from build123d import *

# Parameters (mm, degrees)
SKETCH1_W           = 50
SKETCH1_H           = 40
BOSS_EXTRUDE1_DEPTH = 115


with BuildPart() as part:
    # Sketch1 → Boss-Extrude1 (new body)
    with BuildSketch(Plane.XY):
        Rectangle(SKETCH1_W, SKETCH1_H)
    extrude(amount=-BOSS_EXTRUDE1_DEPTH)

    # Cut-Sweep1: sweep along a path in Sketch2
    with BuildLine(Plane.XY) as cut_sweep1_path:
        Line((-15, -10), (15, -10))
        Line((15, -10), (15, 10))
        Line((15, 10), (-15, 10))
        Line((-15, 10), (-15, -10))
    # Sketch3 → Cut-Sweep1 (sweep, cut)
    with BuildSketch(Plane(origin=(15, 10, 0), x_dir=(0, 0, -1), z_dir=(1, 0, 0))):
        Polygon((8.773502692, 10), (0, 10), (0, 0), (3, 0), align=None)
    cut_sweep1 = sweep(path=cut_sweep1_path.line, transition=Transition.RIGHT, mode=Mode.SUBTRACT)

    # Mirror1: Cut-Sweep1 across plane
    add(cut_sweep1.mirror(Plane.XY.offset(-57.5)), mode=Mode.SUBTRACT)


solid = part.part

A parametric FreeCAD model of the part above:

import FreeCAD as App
import Part
import Sketcher
Q = App.Units.Quantity


def add_polygon(sketch, points):
    """Adds a closed chain of lines whose ends are joined by coincident constraints."""
    first, n = sketch.GeometryCount, len(points)
    for a, b in zip(points, points[1:] + points[:1]):
        sketch.addGeometry(Part.LineSegment(App.Vector(*a, 0), App.Vector(*b, 0)), False)
    for i in range(n):
        sketch.addConstraint(Sketcher.Constraint("Coincident", first + i, 2, first + (i + 1) % n, 1))

doc = App.newDocument("Part")
params = doc.addObject("Spreadsheet::Sheet", "Params")
for row, (alias, value) in enumerate([
    ("sketch1_width", "50 mm"),
    ("sketch1_height", "40 mm"),
    ("pad1_length", "115 mm"),
    ("sketch2_width", "10 mm"),
    ("sketch2_height", "3 mm"),
    ("sketch3_width", "30 mm"),
    ("sketch3_height", "20 mm"),
], start=1):
    params.set(f"A{row}", alias)
    params.set(f"B{row}", "=" + value)
    params.setAlias(f"B{row}", alias)

body = doc.addObject("PartDesign::Body", "Body")

# Sketch on XY plane
sketch1 = doc.addObject("Sketcher::SketchObject", "Sketch")
body.addObject(sketch1)
sketch1.AttachmentSupport = (doc.XY_Plane, [""])
sketch1.MapMode = "FlatFace"
add_polygon(sketch1, [(-25, 20), (-25, -20), (25, -20), (25, 20)])  # lines 0-3
sketch1.addConstraint(Sketcher.Constraint("Vertical", 0))
sketch1.addConstraint(Sketcher.Constraint("Horizontal", 1))
sketch1.addConstraint(Sketcher.Constraint("Vertical", 2))
sketch1.addConstraint(Sketcher.Constraint("Horizontal", 3))
sketch1.addConstraint(Sketcher.Constraint("Symmetric", 0, 2, 2, 2, -1, 1))
sketch1.addConstraint(Sketcher.Constraint("DistanceX", 1, 1, 1, 2, 50.0))
sketch1.addConstraint(Sketcher.Constraint("DistanceY", 0, 2, 0, 1, 40.0))
sketch1.setExpression("Constraints[9]", "Params.sketch1_width")
sketch1.setExpression("Constraints[10]", "Params.sketch1_height")
pad1 = doc.addObject("PartDesign::Pad", "Pad")
body.addObject(pad1)
pad1.Profile = sketch1
pad1.setExpression("Length", "Params.pad1_length")
pad1.Reversed = True

# Sketch on YZ plane
sketch2 = doc.addObject("Sketcher::SketchObject", "Sketch001")
body.addObject(sketch2)
sketch2.AttachmentSupport = (doc.YZ_Plane, [""])
sketch2.MapMode = "FlatFace"
sketch2.AttachmentOffset = App.Placement(App.Vector(0, 0, 15), App.Rotation())
add_polygon(sketch2, [(20, -8.773503), (20, 0), (10, 0), (10, -3)])  # lines 0-3
sketch2.addConstraint(Sketcher.Constraint("Vertical", 0))
sketch2.addConstraint(Sketcher.Constraint("Horizontal", 1))
sketch2.addConstraint(Sketcher.Constraint("Vertical", 2))
sketch2.addConstraint(Sketcher.Constraint("PointOnObject", 0, 2, -1))
sketch2.addConstraint(Sketcher.Constraint("DistanceX", 1, 2, 1, 1, 10.0))
sketch2.addConstraint(Sketcher.Constraint("DistanceY", 2, 2, 2, 1, 3.0))
sketch2.addConstraint(Sketcher.Constraint("Angle", 3, Q("-30 deg")))
sketch2.addConstraint(Sketcher.Constraint("DistanceX", -1, 1, 0, 2, 20.0))
sketch2.setExpression("Constraints[8]", "Params.sketch2_width")
sketch2.setExpression("Constraints[9]", "Params.sketch2_height")

# Sketch on XY plane
sketch3 = doc.addObject("Sketcher::SketchObject", "Sketch002")
body.addObject(sketch3)
sketch3.AttachmentSupport = (doc.XY_Plane, [""])
sketch3.MapMode = "FlatFace"
add_polygon(sketch3, [(-15, -10), (15, -10), (15, 10), (-15, 10)])  # lines 0-3
sketch3.addConstraint(Sketcher.Constraint("Horizontal", 0))
sketch3.addConstraint(Sketcher.Constraint("Vertical", 1))
sketch3.addConstraint(Sketcher.Constraint("Horizontal", 2))
sketch3.addConstraint(Sketcher.Constraint("Vertical", 3))
sketch3.addConstraint(Sketcher.Constraint("Symmetric", 0, 2, 2, 2, -1, 1))
sketch3.addConstraint(Sketcher.Constraint("DistanceX", 0, 1, 0, 2, 30.0))
sketch3.addConstraint(Sketcher.Constraint("DistanceY", 1, 1, 1, 2, 20.0))
sketch3.setExpression("Constraints[9]", "Params.sketch3_width")
sketch3.setExpression("Constraints[10]", "Params.sketch3_height")
doc.recompute()

subtractivepipe = doc.addObject("PartDesign::SubtractivePipe", "SubtractivePipe")
body.addObject(subtractivepipe)
subtractivepipe.Profile = sketch2
subtractivepipe.Spine = (sketch3, ["Edge1", "Edge2", "Edge3", "Edge4"])
subtractivepipe.Transition = "Right corner"
doc.recompute()

datumplane = doc.addObject("PartDesign::Plane", "DatumPlane")
body.addObject(datumplane)
datumplane.AttachmentSupport = (doc.XY_Plane, [""])
datumplane.MapMode = "FlatFace"
datumplane.AttachmentOffset = App.Placement(App.Vector(0, 0, -57.5), App.Rotation())
mirrored = doc.addObject("PartDesign::Mirrored", "Mirrored")
body.addObject(mirrored)
mirrored.Originals = [subtractivepipe]
mirrored.MirrorPlane = (datumplane, [""])
body.Tip = mirrored

doc.recompute()
